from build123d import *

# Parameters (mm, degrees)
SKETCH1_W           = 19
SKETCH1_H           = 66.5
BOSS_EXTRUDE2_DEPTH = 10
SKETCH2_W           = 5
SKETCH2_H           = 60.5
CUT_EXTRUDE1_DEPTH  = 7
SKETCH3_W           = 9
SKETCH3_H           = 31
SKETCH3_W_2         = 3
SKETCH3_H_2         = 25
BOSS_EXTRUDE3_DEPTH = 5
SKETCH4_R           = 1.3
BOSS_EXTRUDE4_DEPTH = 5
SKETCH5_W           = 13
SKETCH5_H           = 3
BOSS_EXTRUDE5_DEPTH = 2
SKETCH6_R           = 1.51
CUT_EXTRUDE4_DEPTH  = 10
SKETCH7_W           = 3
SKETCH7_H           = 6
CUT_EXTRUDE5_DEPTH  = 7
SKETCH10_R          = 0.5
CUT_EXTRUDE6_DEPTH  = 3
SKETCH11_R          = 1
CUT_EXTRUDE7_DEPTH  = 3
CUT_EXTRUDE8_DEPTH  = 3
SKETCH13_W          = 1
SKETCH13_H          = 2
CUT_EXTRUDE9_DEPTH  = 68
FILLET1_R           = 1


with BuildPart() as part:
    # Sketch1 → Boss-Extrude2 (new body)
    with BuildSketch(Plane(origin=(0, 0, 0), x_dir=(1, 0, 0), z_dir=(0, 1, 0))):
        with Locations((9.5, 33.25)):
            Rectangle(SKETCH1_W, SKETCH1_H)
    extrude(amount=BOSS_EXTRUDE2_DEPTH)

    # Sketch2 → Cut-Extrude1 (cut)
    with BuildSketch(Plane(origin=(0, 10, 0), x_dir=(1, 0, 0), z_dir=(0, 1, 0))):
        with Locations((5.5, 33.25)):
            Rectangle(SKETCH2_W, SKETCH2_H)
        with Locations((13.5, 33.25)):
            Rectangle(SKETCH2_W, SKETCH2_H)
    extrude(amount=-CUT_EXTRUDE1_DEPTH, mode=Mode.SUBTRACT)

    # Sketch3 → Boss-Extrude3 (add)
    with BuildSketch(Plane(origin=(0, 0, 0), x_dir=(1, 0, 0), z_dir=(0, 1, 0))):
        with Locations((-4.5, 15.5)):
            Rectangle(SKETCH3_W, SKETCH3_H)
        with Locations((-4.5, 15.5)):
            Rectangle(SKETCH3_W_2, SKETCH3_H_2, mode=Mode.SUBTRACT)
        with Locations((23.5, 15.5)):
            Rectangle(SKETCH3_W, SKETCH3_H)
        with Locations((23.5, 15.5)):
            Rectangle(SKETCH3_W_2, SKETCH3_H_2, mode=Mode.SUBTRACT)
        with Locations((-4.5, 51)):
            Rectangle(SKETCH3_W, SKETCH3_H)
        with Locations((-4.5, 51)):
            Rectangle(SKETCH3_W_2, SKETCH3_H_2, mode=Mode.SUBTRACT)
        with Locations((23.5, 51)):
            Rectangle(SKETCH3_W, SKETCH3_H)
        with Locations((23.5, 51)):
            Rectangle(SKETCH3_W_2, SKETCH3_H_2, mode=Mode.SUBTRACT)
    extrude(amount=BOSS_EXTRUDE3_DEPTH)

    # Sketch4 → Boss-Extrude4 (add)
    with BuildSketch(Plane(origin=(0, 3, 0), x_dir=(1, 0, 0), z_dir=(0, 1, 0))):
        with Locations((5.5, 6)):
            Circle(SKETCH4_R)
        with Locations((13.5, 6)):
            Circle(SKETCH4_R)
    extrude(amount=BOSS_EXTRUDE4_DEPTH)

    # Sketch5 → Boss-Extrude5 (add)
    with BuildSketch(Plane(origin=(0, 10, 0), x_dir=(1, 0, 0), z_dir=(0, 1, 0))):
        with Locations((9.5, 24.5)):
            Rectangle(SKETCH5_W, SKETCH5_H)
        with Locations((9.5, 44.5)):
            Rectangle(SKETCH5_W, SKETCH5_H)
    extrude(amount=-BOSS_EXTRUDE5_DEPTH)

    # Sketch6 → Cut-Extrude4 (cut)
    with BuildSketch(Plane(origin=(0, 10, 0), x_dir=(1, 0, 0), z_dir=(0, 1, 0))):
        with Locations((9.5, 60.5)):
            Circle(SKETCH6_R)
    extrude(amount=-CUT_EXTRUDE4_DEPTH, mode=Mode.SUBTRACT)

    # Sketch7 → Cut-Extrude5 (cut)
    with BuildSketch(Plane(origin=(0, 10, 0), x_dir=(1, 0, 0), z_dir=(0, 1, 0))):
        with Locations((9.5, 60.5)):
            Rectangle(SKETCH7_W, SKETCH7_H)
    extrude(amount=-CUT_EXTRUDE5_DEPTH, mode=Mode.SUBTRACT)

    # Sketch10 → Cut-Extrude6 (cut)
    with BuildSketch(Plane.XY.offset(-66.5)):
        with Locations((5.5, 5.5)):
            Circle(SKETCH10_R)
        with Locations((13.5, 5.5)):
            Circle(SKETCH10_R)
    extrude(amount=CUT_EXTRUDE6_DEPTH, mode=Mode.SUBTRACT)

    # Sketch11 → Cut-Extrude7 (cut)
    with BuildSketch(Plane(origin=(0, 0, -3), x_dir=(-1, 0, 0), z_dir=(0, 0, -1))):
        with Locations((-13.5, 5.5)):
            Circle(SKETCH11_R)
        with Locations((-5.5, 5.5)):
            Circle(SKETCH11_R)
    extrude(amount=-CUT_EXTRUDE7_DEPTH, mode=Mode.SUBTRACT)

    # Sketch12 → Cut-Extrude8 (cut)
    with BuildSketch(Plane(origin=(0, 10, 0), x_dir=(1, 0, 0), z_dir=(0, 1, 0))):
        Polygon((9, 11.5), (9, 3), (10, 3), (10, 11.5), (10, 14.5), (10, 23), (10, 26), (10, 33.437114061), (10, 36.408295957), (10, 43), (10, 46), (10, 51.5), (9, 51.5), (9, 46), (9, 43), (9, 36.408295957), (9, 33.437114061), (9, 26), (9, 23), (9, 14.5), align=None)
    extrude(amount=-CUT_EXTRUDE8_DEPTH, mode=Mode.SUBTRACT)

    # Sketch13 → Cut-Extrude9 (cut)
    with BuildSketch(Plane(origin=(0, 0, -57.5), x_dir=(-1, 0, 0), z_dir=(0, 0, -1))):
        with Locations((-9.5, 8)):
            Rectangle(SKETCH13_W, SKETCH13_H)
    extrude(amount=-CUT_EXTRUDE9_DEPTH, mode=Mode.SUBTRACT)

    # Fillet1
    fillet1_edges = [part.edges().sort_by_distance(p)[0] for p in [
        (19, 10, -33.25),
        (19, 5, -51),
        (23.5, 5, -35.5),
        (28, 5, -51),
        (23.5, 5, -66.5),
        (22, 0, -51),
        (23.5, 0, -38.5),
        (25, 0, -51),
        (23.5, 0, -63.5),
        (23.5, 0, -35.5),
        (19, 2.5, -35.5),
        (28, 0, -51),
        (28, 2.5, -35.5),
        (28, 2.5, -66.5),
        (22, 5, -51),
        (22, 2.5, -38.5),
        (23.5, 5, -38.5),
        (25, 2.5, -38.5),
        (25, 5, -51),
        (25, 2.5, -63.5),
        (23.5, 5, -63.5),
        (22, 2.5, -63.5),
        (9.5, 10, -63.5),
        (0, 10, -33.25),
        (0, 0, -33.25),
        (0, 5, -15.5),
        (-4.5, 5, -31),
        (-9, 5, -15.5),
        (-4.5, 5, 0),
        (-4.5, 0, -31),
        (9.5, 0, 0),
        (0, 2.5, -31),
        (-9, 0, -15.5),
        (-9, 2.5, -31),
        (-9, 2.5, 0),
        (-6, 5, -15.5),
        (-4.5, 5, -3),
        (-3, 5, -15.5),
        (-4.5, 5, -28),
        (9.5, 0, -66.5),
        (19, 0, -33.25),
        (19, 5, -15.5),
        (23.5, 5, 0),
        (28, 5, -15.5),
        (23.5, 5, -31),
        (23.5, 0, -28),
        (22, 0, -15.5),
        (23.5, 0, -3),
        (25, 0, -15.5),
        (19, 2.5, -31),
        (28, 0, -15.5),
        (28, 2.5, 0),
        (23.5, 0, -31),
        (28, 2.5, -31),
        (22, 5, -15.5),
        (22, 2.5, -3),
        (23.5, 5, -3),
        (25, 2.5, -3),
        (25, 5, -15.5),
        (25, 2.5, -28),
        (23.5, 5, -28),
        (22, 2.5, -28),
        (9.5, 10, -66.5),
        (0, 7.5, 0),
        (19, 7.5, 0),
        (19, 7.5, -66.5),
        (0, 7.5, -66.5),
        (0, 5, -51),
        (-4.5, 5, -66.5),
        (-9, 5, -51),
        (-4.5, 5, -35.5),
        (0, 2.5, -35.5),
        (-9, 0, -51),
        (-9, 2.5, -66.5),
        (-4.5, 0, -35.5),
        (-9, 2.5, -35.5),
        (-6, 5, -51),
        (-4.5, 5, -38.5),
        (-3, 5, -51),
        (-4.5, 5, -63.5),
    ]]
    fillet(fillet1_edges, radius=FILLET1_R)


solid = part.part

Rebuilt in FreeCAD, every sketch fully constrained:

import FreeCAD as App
import Part
import Sketcher


def edges_at(feature, points):
    """Names of the edges that pass closest to the given points."""
    edges = feature.Shape.Edges
    near = lambda p: min(range(len(edges)), key=lambda i: edges[i].distToShape(Part.Vertex(*p))[0])
    return sorted({f"Edge{near(p) + 1}" for p in points})

doc = App.newDocument("Part")
body = doc.addObject("PartDesign::Body", "Body")

# Sketch on XZ plane
sketch1 = doc.addObject("Sketcher::SketchObject", "Sketch")
body.addObject(sketch1)
sketch1.AttachmentSupport = (doc.XZ_Plane, [""])
sketch1.MapMode = "FlatFace"
sketch1.addGeometry(Part.LineSegment(App.Vector(0, -66, 0), App.Vector(0, 0, 0)), False)
sketch1.addGeometry(Part.LineSegment(App.Vector(0, 0, 0), App.Vector(19, 0, 0)), False)
sketch1.addGeometry(Part.LineSegment(App.Vector(19, 0, 0), App.Vector(19, -66, 0)), False)
sketch1.addGeometry(Part.LineSegment(App.Vector(19, -66, 0), App.Vector(0, -66, 0)), False)
sketch1.addConstraint(Sketcher.Constraint("Coincident", 0, 2, 1, 1))
sketch1.addConstraint(Sketcher.Constraint("Coincident", 1, 2, 2, 1))
sketch1.addConstraint(Sketcher.Constraint("Coincident", 2, 2, 3, 1))
sketch1.addConstraint(Sketcher.Constraint("Coincident", 3, 2, 0, 1))
sketch1.addConstraint(Sketcher.Constraint("Vertical", 0))
sketch1.addConstraint(Sketcher.Constraint("Horizontal", 1))
sketch1.addConstraint(Sketcher.Constraint("Vertical", 2))
sketch1.addConstraint(Sketcher.Constraint("Horizontal", 3))
sketch1.addConstraint(Sketcher.Constraint("Coincident", 0, 2, -1, 1))
sketch1.addConstraint(Sketcher.Constraint("DistanceX", 1, 1, 1, 2, 19.0))
sketch1.addConstraint(Sketcher.Constraint("DistanceY", 0, 1, 0, 2, 66.5))
pad1 = doc.addObject("PartDesign::Pad", "Pad")
body.addObject(pad1)
pad1.Profile = sketch1
pad1.Length = 10
pad1.Reversed = True

# Sketch on XZ plane
sketch2 = doc.addObject("Sketcher::SketchObject", "Sketch001")
body.addObject(sketch2)
sketch2.AttachmentSupport = (doc.XZ_Plane, [""])
sketch2.MapMode = "FlatFace"
sketch2.AttachmentOffset = App.Placement(App.Vector(0, 0, -10), App.Rotation())
sketch2.addGeometry(Part.LineSegment(App.Vector(3, -64, 0), App.Vector(3, -3, 0)), False)
sketch2.addGeometry(Part.LineSegment(App.Vector(3, -3, 0), App.Vector(8, -3, 0)), False)
sketch2.addGeometry(Part.LineSegment(App.Vector(8, -3, 0), App.Vector(8, -64, 0)), False)
sketch2.addGeometry(Part.LineSegment(App.Vector(8, -64, 0), App.Vector(3, -64, 0)), False)
sketch2.addGeometry(Part.LineSegment(App.Vector(11, -64, 0), App.Vector(11, -3, 0)), False)
sketch2.addGeometry(Part.LineSegment(App.Vector(11, -3, 0), App.Vector(16, -3, 0)), False)
sketch2.addGeometry(Part.LineSegment(App.Vector(16, -3, 0), App.Vector(16, -64, 0)), False)
sketch2.addGeometry(Part.LineSegment(App.Vector(16, -64, 0), App.Vector(11, -64, 0)), False)
sketch2.addConstraint(Sketcher.Constraint("Coincident", 0, 2, 1, 1))
sketch2.addConstraint(Sketcher.Constraint("Coincident", 1, 2, 2, 1))
sketch2.addConstraint(Sketcher.Constraint("Coincident", 2, 2, 3, 1))
sketch2.addConstraint(Sketcher.Constraint("Coincident", 3, 2, 0, 1))
sketch2.addConstraint(Sketcher.Constraint("Coincident", 4, 2, 5, 1))
sketch2.addConstraint(Sketcher.Constraint("Coincident", 5, 2, 6, 1))
sketch2.addConstraint(Sketcher.Constraint("Coincident", 6, 2, 7, 1))
sketch2.addConstraint(Sketcher.Constraint("Coincident", 7, 2, 4, 1))
sketch2.addConstraint(Sketcher.Constraint("Vertical", 0))
sketch2.addConstraint(Sketcher.Constraint("Horizontal", 1))
sketch2.addConstraint(Sketcher.Constraint("Vertical", 2))
sketch2.addConstraint(Sketcher.Constraint("Horizontal", 3))
sketch2.addConstraint(Sketcher.Constraint("Vertical", 4))
sketch2.addConstraint(Sketcher.Constraint("Horizontal", 5))
sketch2.addConstraint(Sketcher.Constraint("Vertical", 6))
sketch2.addConstraint(Sketcher.Constraint("Horizontal", 7))
sketch2.addConstraint(Sketcher.Constraint("Horizontal", 1, 2, 4, 2))
sketch2.addConstraint(Sketcher.Constraint("Horizontal", 3, 2, 6, 2))
sketch2.addConstraint(Sketcher.Constraint("Equal", 3, 5))
sketch2.addConstraint(Sketcher.Constraint("DistanceX", 1, 1, 1, 2, 5.0))
sketch2.addConstraint(Sketcher.Constraint("DistanceY", 0, 1, 0, 2, 60.5))
sketch2.addConstraint(Sketcher.Constraint("DistanceX", -1, 1, 0, 2, 3.0))
sketch2.addConstraint(Sketcher.Constraint("DistanceY", 0, 2, -1, 1, 3.0))
sketch2.addConstraint(Sketcher.Constraint("DistanceX", -1, 1, 4, 2, 11.0))
pocket1 = doc.addObject("PartDesign::Pocket", "Pocket")
body.addObject(pocket1)
pocket1.Profile = sketch2
pocket1.Length = 7
pocket1.Reversed = True

# Sketch on XZ plane
sketch3 = doc.addObject("Sketcher::SketchObject", "Sketch002")
body.addObject(sketch3)
sketch3.AttachmentSupport = (doc.XZ_Plane, [""])
sketch3.MapMode = "FlatFace"
sketch3.addGeometry(Part.LineSegment(App.Vector(-9, -31, 0), App.Vector(-9, 0, 0)), False)
sketch3.addGeometry(Part.LineSegment(App.Vector(-9, 0, 0), App.Vector(0, 0, 0)), False)
sketch3.addGeometry(Part.LineSegment(App.Vector(0, 0, 0), App.Vector(0, -31, 0)), False)
sketch3.addGeometry(Part.LineSegment(App.Vector(0, -31, 0), App.Vector(-9, -31, 0)), False)
sketch3.addGeometry(Part.LineSegment(App.Vector(-3, -3, 0), App.Vector(-6, -3, 0)), False)
sketch3.addGeometry(Part.LineSegment(App.Vector(-6, -3, 0), App.Vector(-6, -28, 0)), False)
sketch3.addGeometry(Part.LineSegment(App.Vector(-6, -28, 0), App.Vector(-3, -28, 0)), False)
sketch3.addGeometry(Part.LineSegment(App.Vector(-3, -28, 0), App.Vector(-3, -3, 0)), False)
sketch3.addGeometry(Part.LineSegment(App.Vector(19, -31, 0), App.Vector(19, 0, 0)), False)
sketch3.addGeometry(Part.LineSegment(App.Vector(19, 0, 0), App.Vector(28, 0, 0)), False)
sketch3.addGeometry(Part.LineSegment(App.Vector(28, 0, 0), App.Vector(28, -31, 0)), False)
sketch3.addGeometry(Part.LineSegment(App.Vector(28, -31, 0), App.Vector(19, -31, 0)), False)
sketch3.addGeometry(Part.LineSegment(App.Vector(25, -3, 0), App.Vector(22, -3, 0)), False)
sketch3.addGeometry(Part.LineSegment(App.Vector(22, -3, 0), App.Vector(22, -28, 0)), False)
sketch3.addGeometry(Part.LineSegment(App.Vector(22, -28, 0), App.Vector(25, -28, 0)), False)
sketch3.addGeometry(Part.LineSegment(App.Vector(25, -28, 0), App.Vector(25, -3, 0)), False)
sketch3.addGeometry(Part.LineSegment(App.Vector(-9, -66.5, 0), App.Vector(-9, -35.5, 0)), False)
sketch3.addGeometry(Part.LineSegment(App.Vector(-9, -35.5, 0), App.Vector(0, -35.5, 0)), False)
sketch3.addGeometry(Part.LineSegment(App.Vector(0, -35.5, 0), App.Vector(0, -66.5, 0)), False)
sketch3.addGeometry(Part.LineSegment(App.Vector(0, -66.5, 0), App.Vector(-9, -66.5, 0)), False)
sketch3.addGeometry(Part.LineSegment(App.Vector(-3, -38.5, 0), App.Vector(-6, -38.5, 0)), False)
sketch3.addGeometry(Part.LineSegment(App.Vector(-6, -38.5, 0), App.Vector(-6, -63.5, 0)), False)
sketch3.addGeometry(Part.LineSegment(App.Vector(-6, -63.5, 0), App.Vector(-3, -63.5, 0)), False)
sketch3.addGeometry(Part.LineSegment(App.Vector(-3, -63.5, 0), App.Vector(-3, -38.5, 0)), False)
sketch3.addGeometry(Part.LineSegment(App.Vector(19, -66.5, 0), App.Vector(19, -35.5, 0)), False)
sketch3.addGeometry(Part.LineSegment(App.Vector(19, -35.5, 0), App.Vector(28, -35.5, 0)), False)
sketch3.addGeometry(Part.LineSegment(App.Vector(28, -35.5, 0), App.Vector(28, -66.5, 0)), False)
sketch3.addGeometry(Part.LineSegment(App.Vector(28, -66.5, 0), App.Vector(19, -66.5, 0)), False)
sketch3.addGeometry(Part.LineSegment(App.Vector(25, -38.5, 0), App.Vector(22, -38.5, 0)), False)
sketch3.addGeometry(Part.LineSegment(App.Vector(22, -38.5, 0), App.Vector(22, -63.5, 0)), False)
sketch3.addGeometry(Part.LineSegment(App.Vector(22, -63.5, 0), App.Vector(25, -63.5, 0)), False)
sketch3.addGeometry(Part.LineSegment(App.Vector(25, -63.5, 0), App.Vector(25, -38.5, 0)), False)
sketch3.addConstraint(Sketcher.Constraint("Coincident", 0, 2, 1, 1))
sketch3.addConstraint(Sketcher.Constraint("Coincident", 1, 2, 2, 1))
sketch3.addConstraint(Sketcher.Constraint("Coincident", 2, 2, 3, 1))
sketch3.addConstraint(Sketcher.Constraint("Coincident", 3, 2, 0, 1))
sketch3.addConstraint(Sketcher.Constraint("Coincident", 4, 2, 5, 1))
sketch3.addConstraint(Sketcher.Constraint("Coincident", 5, 2, 6, 1))
sketch3.addConstraint(Sketcher.Constraint("Coincident", 6, 2, 7, 1))
sketch3.addConstraint(Sketcher.Constraint("Coincident", 7, 2, 4, 1))
sketch3.addConstraint(Sketcher.Constraint("Coincident", 8, 2, 9, 1))
sketch3.addConstraint(Sketcher.Constraint("Coincident", 9, 2, 10, 1))
sketch3.addConstraint(Sketcher.Constraint("Coincident", 10, 2, 11, 1))
sketch3.addConstraint(Sketcher.Constraint("Coincident", 11, 2, 8, 1))
sketch3.addConstraint(Sketcher.Constraint("Coincident", 12, 2, 13, 1))
sketch3.addConstraint(Sketcher.Constraint("Coincident", 13, 2, 14, 1))
sketch3.addConstraint(Sketcher.Constraint("Coincident", 14, 2, 15, 1))
sketch3.addConstraint(Sketcher.Constraint("Coincident", 15, 2, 12, 1))
sketch3.addConstraint(Sketcher.Constraint("Coincident", 16, 2, 17, 1))
sketch3.addConstraint(Sketcher.Constraint("Coincident", 17, 2, 18, 1))
sketch3.addConstraint(Sketcher.Constraint("Coincident", 18, 2, 19, 1))
sketch3.addConstraint(Sketcher.Constraint("Coincident", 19, 2, 16, 1))
sketch3.addConstraint(Sketcher.Constraint("Coincident", 20, 2, 21, 1))
sketch3.addConstraint(Sketcher.Constraint("Coincident", 21, 2, 22, 1))
sketch3.addConstraint(Sketcher.Constraint("Coincident", 22, 2, 23, 1))
sketch3.addConstraint(Sketcher.Constraint("Coincident", 23, 2, 20, 1))
sketch3.addConstraint(Sketcher.Constraint("Coincident", 24, 2, 25, 1))
sketch3.addConstraint(Sketcher.Constraint("Coincident", 25, 2, 26, 1))
sketch3.addConstraint(Sketcher.Constraint("Coincident", 26, 2, 27, 1))
sketch3.addConstraint(Sketcher.Constraint("Coincident", 27, 2, 24, 1))
sketch3.addConstraint(Sketcher.Constraint("Coincident", 28, 2, 29, 1))
sketch3.addConstraint(Sketcher.Constraint("Coincident", 29, 2, 30, 1))
sketch3.addConstraint(Sketcher.Constraint("Coincident", 30, 2, 31, 1))
sketch3.addConstraint(Sketcher.Constraint("Coincident", 31, 2, 28, 1))
sketch3.addConstraint(Sketcher.Constraint("Vertical", 0))
sketch3.addConstraint(Sketcher.Constraint("Horizontal", 1))
sketch3.addConstraint(Sketcher.Constraint("Vertical", 2))
sketch3.addConstraint(Sketcher.Constraint("Horizontal", 3))
sketch3.addConstraint(Sketcher.Constraint("Horizontal", 4))
sketch3.addConstraint(Sketcher.Constraint("Vertical", 5))
sketch3.addConstraint(Sketcher.Constraint("Horizontal", 6))
sketch3.addConstraint(Sketcher.Constraint("Vertical", 7))
sketch3.addConstraint(Sketcher.Constraint("Vertical", 8))
sketch3.addConstraint(Sketcher.Constraint("Horizontal", 9))
sketch3.addConstraint(Sketcher.Constraint("Vertical", 10))
sketch3.addConstraint(Sketcher.Constraint("Horizontal", 11))
sketch3.addConstraint(Sketcher.Constraint("Horizontal", 12))
sketch3.addConstraint(Sketcher.Constraint("Vertical", 13))
sketch3.addConstraint(Sketcher.Constraint("Horizontal", 14))
sketch3.addConstraint(Sketcher.Constraint("Vertical", 15))
sketch3.addConstraint(Sketcher.Constraint("Vertical", 16))
sketch3.addConstraint(Sketcher.Constraint("Horizontal", 17))
sketch3.addConstraint(Sketcher.Constraint("Vertical", 18))
sketch3.addConstraint(Sketcher.Constraint("Horizontal", 19))
sketch3.addConstraint(Sketcher.Constraint("Horizontal", 20))
sketch3.addConstraint(Sketcher.Constraint("Vertical", 21))
sketch3.addConstraint(Sketcher.Constraint("Horizontal", 22))
sketch3.addConstraint(Sketcher.Constraint("Vertical", 23))
sketch3.addConstraint(Sketcher.Constraint("Vertical", 24))
sketch3.addConstraint(Sketcher.Constraint("Horizontal", 25))
sketch3.addConstraint(Sketcher.Constraint("Vertical", 26))
sketch3.addConstraint(Sketcher.Constraint("Horizontal", 27))
sketch3.addConstraint(Sketcher.Constraint("Horizontal", 28))
sketch3.addConstraint(Sketcher.Constraint("Vertical", 29))
sketch3.addConstraint(Sketcher.Constraint("Horizontal", 30))
sketch3.addConstraint(Sketcher.Constraint("Vertical", 31))
sketch3.addConstraint(Sketcher.Constraint("Coincident", 1, 2, -1, 1))
sketch3.addConstraint(Sketcher.Constraint("PointOnObject", 8, 2, -1))
sketch3.addConstraint(Sketcher.Constraint("PointOnObject", 17, 2, -2))
sketch3.addConstraint(Sketcher.Constraint("Horizontal", 3, 2, 10, 2))
sketch3.addConstraint(Sketcher.Constraint("Horizontal", 7, 2, 12, 2))
sketch3.addConstraint(Sketcher.Constraint("Horizontal", 6, 2, 13, 2))
sketch3.addConstraint(Sketcher.Constraint("Horizontal", 17, 2, 24, 2))
sketch3.addConstraint(Sketcher.Constraint("Horizontal", 19, 2, 26, 2))
sketch3.addConstraint(Sketcher.Constraint("Horizontal", 23, 2, 28, 2))
sketch3.addConstraint(Sketcher.Constraint("Horizontal", 22, 2, 29, 2))
sketch3.addConstraint(Sketcher.Constraint("Vertical", 3, 2, 16, 2))
sketch3.addConstraint(Sketcher.Constraint("Vertical", 5, 2, 20, 2))
sketch3.addConstraint(Sketcher.Constraint("Vertical", 7, 2, 22, 2))
sketch3.addConstraint(Sketcher.Constraint("Vertical", 11, 2, 24, 2))
sketch3.addConstraint(Sketcher.Constraint("Vertical", 10, 2, 25, 2))
sketch3.addConstraint(Sketcher.Constraint("Vertical", 13, 2, 28, 2))
sketch3.addConstraint(Sketcher.Constraint("Vertical", 15, 2, 30, 2))
sketch3.addConstraint(Sketcher.Constraint("Equal", 3, 9))
sketch3.addConstraint(Sketcher.Constraint("Equal", 6, 12))
sketch3.addConstraint(Sketcher.Constraint("Equal", 10, 16))
sketch3.addConstraint(Sketcher.Constraint("Equal", 15, 21))
sketch3.addConstraint(Sketcher.Constraint("DistanceX", 1, 1, 1, 2, 9.0))
sketch3.addConstraint(Sketcher.Constraint("DistanceX", 4, 2, 4, 1, 3.0))
sketch3.addConstraint(Sketcher.Constraint("DistanceY", 0, 1, 0, 2, 31.0))
sketch3.addConstraint(Sketcher.Constraint("DistanceY", 5, 2, 5, 1, 25.0))
sketch3.addConstraint(Sketcher.Constraint("DistanceX", 4, 2, -1, 1, 6.0))
sketch3.addConstraint(Sketcher.Constraint("DistanceY", 4, 2, -1, 1, 3.0))
sketch3.addConstraint(Sketcher.Constraint("DistanceX", -1, 1, 8, 2, 19.0))
sketch3.addConstraint(Sketcher.Constraint("DistanceX", -1, 1, 12, 2, 22.0))
sketch3.addConstraint(Sketcher.Constraint("DistanceY", 20, 2, 16, 2, 3.0))
sketch3.addConstraint(Sketcher.Constraint("DistanceY", 16, 2, -1, 1, 35.5))
pad2 = doc.addObject("PartDesign::Pad", "Pad001")
body.addObject(pad2)
pad2.Profile = sketch3
pad2.Length = 5
pad2.Reversed = True

# Sketch on XZ plane
sketch4 = doc.addObject("Sketcher::SketchObject", "Sketch003")
body.addObject(sketch4)
sketch4.AttachmentSupport = (doc.XZ_Plane, [""])
sketch4.MapMode = "FlatFace"
sketch4.AttachmentOffset = App.Placement(App.Vector(0, 0, -3), App.Rotation())
sketch4.addGeometry(Part.Circle(App.Vector(5.5, -6, 0), App.Vector(0, 0, 1), 1.3), False)
sketch4.addGeometry(Part.Circle(App.Vector(13.5, -6, 0), App.Vector(0, 0, 1), 1.3), False)
sketch4.addConstraint(Sketcher.Constraint("Equal", 0, 1))
sketch4.addConstraint(Sketcher.Constraint("Horizontal", 0, 3, 1, 3))
sketch4.addConstraint(Sketcher.Constraint("Diameter", 0, 2.6))
sketch4.addConstraint(Sketcher.Constraint("DistanceY", 0, 3, -1, 1, 6.0))
sketch4.addConstraint(Sketcher.Constraint("DistanceX", 0, 3, 1, 3, 8.0))
sketch4.addConstraint(Sketcher.Constraint("DistanceX", -1, 1, 0, 3, 5.5))
pad3 = doc.addObject("PartDesign::Pad", "Pad002")
body.addObject(pad3)
pad3.Profile = sketch4
pad3.Length = 5
pad3.Reversed = True

# Sketch on XZ plane
sketch5 = doc.addObject("Sketcher::SketchObject", "Sketch004")
body.addObject(sketch5)
sketch5.AttachmentSupport = (doc.XZ_Plane, [""])
sketch5.MapMode = "FlatFace"
sketch5.AttachmentOffset = App.Placement(App.Vector(0, 0, -10), App.Rotation())
sketch5.addGeometry(Part.LineSegment(App.Vector(3, -26, 0), App.Vector(3, -23, 0)), False)
sketch5.addGeometry(Part.LineSegment(App.Vector(3, -23, 0), App.Vector(16, -23, 0)), False)
sketch5.addGeometry(Part.LineSegment(App.Vector(16, -23, 0), App.Vector(16, -26, 0)), False)
sketch5.addGeometry(Part.LineSegment(App.Vector(16, -26, 0), App.Vector(3, -26, 0)), False)
sketch5.addGeometry(Part.LineSegment(App.Vector(3, -46, 0), App.Vector(3, -43, 0)), False)
sketch5.addGeometry(Part.LineSegment(App.Vector(3, -43, 0), App.Vector(16, -43, 0)), False)
sketch5.addGeometry(Part.LineSegment(App.Vector(16, -43, 0), App.Vector(16, -46, 0)), False)
sketch5.addGeometry(Part.LineSegment(App.Vector(16, -46, 0), App.Vector(3, -46, 0)), False)
sketch5.addConstraint(Sketcher.Constraint("Coincident", 0, 2, 1, 1))
sketch5.addConstraint(Sketcher.Constraint("Coincident", 1, 2, 2, 1))
sketch5.addConstraint(Sketcher.Constraint("Coincident", 2, 2, 3, 1))
sketch5.addConstraint(Sketcher.Constraint("Coincident", 3, 2, 0, 1))
sketch5.addConstraint(Sketcher.Constraint("Coincident", 4, 2, 5, 1))
sketch5.addConstraint(Sketcher.Constraint("Coincident", 5, 2, 6, 1))
sketch5.addConstraint(Sketcher.Constraint("Coincident", 6, 2, 7, 1))
sketch5.addConstraint(Sketcher.Constraint("Coincident", 7, 2, 4, 1))
sketch5.addConstraint(Sketcher.Constraint("Vertical", 0))
sketch5.addConstraint(Sketcher.Constraint("Horizontal", 1))
sketch5.addConstraint(Sketcher.Constraint("Vertical", 2))
sketch5.addConstraint(Sketcher.Constraint("Horizontal", 3))
sketch5.addConstraint(Sketcher.Constraint("Vertical", 4))
sketch5.addConstraint(Sketcher.Constraint("Horizontal", 5))
sketch5.addConstraint(Sketcher.Constraint("Vertical", 6))
sketch5.addConstraint(Sketcher.Constraint("Horizontal", 7))
sketch5.addConstraint(Sketcher.Constraint("Vertical", 3, 2, 4, 2))
sketch5.addConstraint(Sketcher.Constraint("Vertical", 2, 2, 5, 2))
sketch5.addConstraint(Sketcher.Constraint("Equal", 2, 4))
sketch5.addConstraint(Sketcher.Constraint("DistanceX", 1, 1, 1, 2, 13.0))
sketch5.addConstraint(Sketcher.Constraint("DistanceY", 0, 1, 0, 2, 3.0))
sketch5.addConstraint(Sketcher.Constraint("DistanceX", -1, 1, 0, 2, 3.0))
sketch5.addConstraint(Sketcher.Constraint("DistanceY", 0, 2, -1, 1, 23.0))
sketch5.addConstraint(Sketcher.Constraint("DistanceY", 4, 2, -1, 1, 43.0))
pad4 = doc.addObject("PartDesign::Pad", "Pad003")
body.addObject(pad4)
pad4.Profile = sketch5
pad4.Length = 2

# Sketch on XZ plane
sketch6 = doc.addObject("Sketcher::SketchObject", "Sketch005")
body.addObject(sketch6)
sketch6.AttachmentSupport = (doc.XZ_Plane, [""])
sketch6.MapMode = "FlatFace"
sketch6.AttachmentOffset = App.Placement(App.Vector(0, 0, -10), App.Rotation())
sketch6.addGeometry(Part.Circle(App.Vector(9.5, -60.5, 0), App.Vector(0, 0, 1), 1.5), False)
sketch6.addConstraint(Sketcher.Constraint("Diameter", 0, 3.02))
sketch6.addConstraint(Sketcher.Constraint("DistanceX", -1, 1, 0, 3, 9.5))
sketch6.addConstraint(Sketcher.Constraint("DistanceY", 0, 3, -1, 1, 60.5))
pocket2 = doc.addObject("PartDesign::Pocket", "Pocket001")
body.addObject(pocket2)
pocket2.Profile = sketch6
pocket2.Length = 10
pocket2.Reversed = True

# Sketch on XZ plane
sketch7 = doc.addObject("Sketcher::SketchObject", "Sketch006")
body.addObject(sketch7)
sketch7.AttachmentSupport = (doc.XZ_Plane, [""])
sketch7.MapMode = "FlatFace"
sketch7.AttachmentOffset = App.Placement(App.Vector(0, 0, -10), App.Rotation())
sketch7.addGeometry(Part.LineSegment(App.Vector(8, -63.5, 0), App.Vector(8, -57.5, 0)), False)
sketch7.addGeometry(Part.LineSegment(App.Vector(8, -57.5, 0), App.Vector(11, -57.5, 0)), False)
sketch7.addGeometry(Part.LineSegment(App.Vector(11, -57.5, 0), App.Vector(11, -63.5, 0)), False)
sketch7.addGeometry(Part.LineSegment(App.Vector(11, -63.5, 0), App.Vector(8, -63.5, 0)), False)
sketch7.addConstraint(Sketcher.Constraint("Coincident", 0, 2, 1, 1))
sketch7.addConstraint(Sketcher.Constraint("Coincident", 1, 2, 2, 1))
sketch7.addConstraint(Sketcher.Constraint("Coincident", 2, 2, 3, 1))
sketch7.addConstraint(Sketcher.Constraint("Coincident", 3, 2, 0, 1))
sketch7.addConstraint(Sketcher.Constraint("Vertical", 0))
sketch7.addConstraint(Sketcher.Constraint("Horizontal", 1))
sketch7.addConstraint(Sketcher.Constraint("Vertical", 2))
sketch7.addConstraint(Sketcher.Constraint("Horizontal", 3))
sketch7.addConstraint(Sketcher.Constraint("DistanceX", 1, 1, 1, 2, 3.0))
sketch7.addConstraint(Sketcher.Constraint("DistanceY", 0, 1, 0, 2, 6.0))
sketch7.addConstraint(Sketcher.Constraint("DistanceX", -1, 1, 0, 2, 8.0))
sketch7.addConstraint(Sketcher.Constraint("DistanceY", 0, 2, -1, 1, 57.5))
pocket3 = doc.addObject("PartDesign::Pocket", "Pocket002")
body.addObject(pocket3)
pocket3.Profile = sketch7
pocket3.Length = 7
pocket3.Reversed = True

# Sketch on XY plane
sketch8 = doc.addObject("Sketcher::SketchObject", "Sketch007")
body.addObject(sketch8)
sketch8.AttachmentSupport = (doc.XY_Plane, [""])
sketch8.MapMode = "FlatFace"
sketch8.AttachmentOffset = App.Placement(App.Vector(0, 0, -66.5), App.Rotation())
sketch8.addGeometry(Part.Circle(App.Vector(5.5, 5.5, 0), App.Vector(0, 0, 1), 0.5), False)
sketch8.addGeometry(Part.Circle(App.Vector(13.5, 5.5, 0), App.Vector(0, 0, 1), 0.5), False)
sketch8.addConstraint(Sketcher.Constraint("Equal", 0, 1))
sketch8.addConstraint(Sketcher.Constraint("Horizontal", 0, 3, 1, 3))
sketch8.addConstraint(Sketcher.Constraint("Diameter", 0, 1.0))
sketch8.addConstraint(Sketcher.Constraint("DistanceX", 0, 3, 1, 3, 8.0))
sketch8.addConstraint(Sketcher.Constraint("DistanceX", -1, 1, 0, 3, 5.5))
sketch8.addConstraint(Sketcher.Constraint("DistanceY", -1, 1, 0, 3, 5.5))
pocket4 = doc.addObject("PartDesign::Pocket", "Pocket003")
body.addObject(pocket4)
pocket4.Profile = sketch8
pocket4.Length = 3
pocket4.Reversed = True

# Sketch on XY plane
sketch9 = doc.addObject("Sketcher::SketchObject", "Sketch008")
body.addObject(sketch9)
sketch9.AttachmentSupport = (doc.XY_Plane, [""])
sketch9.MapMode = "FlatFace"
sketch9.AttachmentOffset = App.Placement(App.Vector(0, 0, -3), App.Rotation())
sketch9.addGeometry(Part.Circle(App.Vector(13.5, 5.5, 0), App.Vector(0, 0, 1), 1), False)
sketch9.addGeometry(Part.Circle(App.Vector(5.5, 5.5, 0), App.Vector(0, 0, 1), 1), False)
sketch9.addConstraint(Sketcher.Constraint("Equal", 0, 1))
sketch9.addConstraint(Sketcher.Constraint("Horizontal", 0, 3, 1, 3))
sketch9.addConstraint(Sketcher.Constraint("Diameter", 0, 2.0))
sketch9.addConstraint(Sketcher.Constraint("DistanceX", 1, 3, 0, 3, 8.0))
sketch9.addConstraint(Sketcher.Constraint("DistanceX", -1, 1, 0, 3, 13.5))
sketch9.addConstraint(Sketcher.Constraint("DistanceY", -1, 1, 0, 3, 5.5))
pocket5 = doc.addObject("PartDesign::Pocket", "Pocket004")
body.addObject(pocket5)
pocket5.Profile = sketch9
pocket5.Length = 3
pocket5.Reversed = True

# Sketch on XZ plane
sketch10 = doc.addObject("Sketcher::SketchObject", "Sketch009")
body.addObject(sketch10)
sketch10.AttachmentSupport = (doc.XZ_Plane, [""])
sketch10.MapMode = "FlatFace"
sketch10.AttachmentOffset = App.Placement(App.Vector(0, 0, -10), App.Rotation())
sketch10.addGeometry(Part.LineSegment(App.Vector(9, -3, 0), App.Vector(10, -3, 0)), False)
sketch10.addGeometry(Part.LineSegment(App.Vector(10, -3, 0), App.Vector(10, -51.5, 0)), False)
sketch10.addGeometry(Part.LineSegment(App.Vector(10, -51.5, 0), App.Vector(9, -51.5, 0)), False)
sketch10.addGeometry(Part.LineSegment(App.Vector(9, -51.5, 0), App.Vector(9, -3, 0)), False)
sketch10.addConstraint(Sketcher.Constraint("Coincident", 0, 2, 1, 1))
sketch10.addConstraint(Sketcher.Constraint("Coincident", 1, 2, 2, 1))
sketch10.addConstraint(Sketcher.Constraint("Coincident", 2, 2, 3, 1))
sketch10.addConstraint(Sketcher.Constraint("Coincident", 3, 2, 0, 1))
sketch10.addConstraint(Sketcher.Constraint("Horizontal", 0))
sketch10.addConstraint(Sketcher.Constraint("Vertical", 1))
sketch10.addConstraint(Sketcher.Constraint("Horizontal", 2))
sketch10.addConstraint(Sketcher.Constraint("Vertical", 3))
sketch10.addConstraint(Sketcher.Constraint("DistanceX", 0, 1, 0, 2, 1.0))
sketch10.addConstraint(Sketcher.Constraint("DistanceY", 1, 2, 1, 1, 48.5))
sketch10.addConstraint(Sketcher.Constraint("DistanceX", -1, 1, 0, 2, 10.0))
sketch10.addConstraint(Sketcher.Constraint("DistanceY", 0, 2, -1, 1, 3.0))
pocket6 = doc.addObject("PartDesign::Pocket", "Pocket005")
body.addObject(pocket6)
pocket6.Profile = sketch10
pocket6.Length = 3
pocket6.Reversed = True

# Sketch on XY plane
sketch11 = doc.addObject("Sketcher::SketchObject", "Sketch010")
body.addObject(sketch11)
sketch11.AttachmentSupport = (doc.XY_Plane, [""])
sketch11.MapMode = "FlatFace"
sketch11.AttachmentOffset = App.Placement(App.Vector(0, 0, -57.5), App.Rotation())
sketch11.addGeometry(Part.LineSegment(App.Vector(10, 9, 0), App.Vector(10, 7, 0)), False)
sketch11.addGeometry(Part.LineSegment(App.Vector(10, 7, 0), App.Vector(9, 7, 0)), False)
sketch11.addGeometry(Part.LineSegment(App.Vector(9, 7, 0), App.Vector(9, 9, 0)), False)
sketch11.addGeometry(Part.LineSegment(App.Vector(9, 9, 0), App.Vector(10, 9, 0)), False)
sketch11.addConstraint(Sketcher.Constraint("Coincident", 0, 2, 1, 1))
sketch11.addConstraint(Sketcher.Constraint("Coincident", 1, 2, 2, 1))
sketch11.addConstraint(Sketcher.Constraint("Coincident", 2, 2, 3, 1))
sketch11.addConstraint(Sketcher.Constraint("Coincident", 3, 2, 0, 1))
sketch11.addConstraint(Sketcher.Constraint("Vertical", 0))
sketch11.addConstraint(Sketcher.Constraint("Horizontal", 1))
sketch11.addConstraint(Sketcher.Constraint("Vertical", 2))
sketch11.addConstraint(Sketcher.Constraint("Horizontal", 3))
sketch11.addConstraint(Sketcher.Constraint("DistanceX", 1, 2, 1, 1, 1.0))
sketch11.addConstraint(Sketcher.Constraint("DistanceY", 0, 2, 0, 1, 2.0))
sketch11.addConstraint(Sketcher.Constraint("DistanceX", -1, 1, 0, 2, 10.0))
sketch11.addConstraint(Sketcher.Constraint("DistanceY", -1, 1, 0, 2, 7.0))
pocket7 = doc.addObject("PartDesign::Pocket", "Pocket006")
body.addObject(pocket7)
pocket7.Profile = sketch11
pocket7.Length = 68
pocket7.Reversed = True
doc.recompute()

fillet = doc.addObject("PartDesign::Fillet", "Fillet")
body.addObject(fillet)
fillet.Base = (pocket7, edges_at(pocket7, [
    (19, 10, -33.25),
    (19, 5, -51),
    (23.5, 5, -35.5),
    (28, 5, -51),
    (23.5, 5, -66.5),
    (22, 0, -51),
    (23.5, 0, -38.5),
    (25, 0, -51),
    (23.5, 0, -63.5),
    (23.5, 0, -35.5),
    (19, 2.5, -35.5),
    (28, 0, -51),
    (28, 2.5, -35.5),
    (28, 2.5, -66.5),
    (22, 5, -51),
    (22, 2.5, -38.5),
    (23.5, 5, -38.5),
    (25, 2.5, -38.5),
    (25, 5, -51),
    (25, 2.5, -63.5),
    (23.5, 5, -63.5),
    (22, 2.5, -63.5),
    (9.5, 10, -63.5),
    (0, 10, -33.25),
    (0, 0, -33.25),
    (0, 5, -15.5),
    (-4.5, 5, -31),
    (-9, 5, -15.5),
    (-4.5, 5, 0),
    (-4.5, 0, -31),
    (9.5, 0, 0),
    (0, 2.5, -31),
    (-9, 0, -15.5),
    (-9, 2.5, -31),
    (-9, 2.5, 0),
    (-6, 5, -15.5),
    (-4.5, 5, -3),
    (-3, 5, -15.5),
    (-4.5, 5, -28),
    (9.5, 0, -66.5),
    (19, 0, -33.25),
    (19, 5, -15.5),
    (23.5, 5, 0),
    (28, 5, -15.5),
    (23.5, 5, -31),
    (23.5, 0, -28),
    (22, 0, -15.5),
    (23.5, 0, -3),
    (25, 0, -15.5),
    (19, 2.5, -31),
    (28, 0, -15.5),
    (28, 2.5, 0),
    (23.5, 0, -31),
    (28, 2.5, -31),
    (22, 5, -15.5),
    (22, 2.5, -3),
    (23.5, 5, -3),
    (25, 2.5, -3),
    (25, 5, -15.5),
    (25, 2.5, -28),
    (23.5, 5, -28),
    (22, 2.5, -28),
    (9.5, 10, -66.5),
    (0, 7.5, 0),
    (19, 7.5, 0),
    (19, 7.5, -66.5),
    (0, 7.5, -66.5),
    (0, 5, -51),
    (-4.5, 5, -66.5),
    (-9, 5, -51),
    (-4.5, 5, -35.5),
    (0, 2.5, -35.5),
    (-9, 0, -51),
    (-9, 2.5, -66.5),
    (-4.5, 0, -35.5),
    (-9, 2.5, -35.5),
    (-6, 5, -51),
    (-4.5, 5, -38.5),
    (-3, 5, -51),
    (-4.5, 5, -63.5),
]))
fillet.Radius = 1

doc.recompute()
